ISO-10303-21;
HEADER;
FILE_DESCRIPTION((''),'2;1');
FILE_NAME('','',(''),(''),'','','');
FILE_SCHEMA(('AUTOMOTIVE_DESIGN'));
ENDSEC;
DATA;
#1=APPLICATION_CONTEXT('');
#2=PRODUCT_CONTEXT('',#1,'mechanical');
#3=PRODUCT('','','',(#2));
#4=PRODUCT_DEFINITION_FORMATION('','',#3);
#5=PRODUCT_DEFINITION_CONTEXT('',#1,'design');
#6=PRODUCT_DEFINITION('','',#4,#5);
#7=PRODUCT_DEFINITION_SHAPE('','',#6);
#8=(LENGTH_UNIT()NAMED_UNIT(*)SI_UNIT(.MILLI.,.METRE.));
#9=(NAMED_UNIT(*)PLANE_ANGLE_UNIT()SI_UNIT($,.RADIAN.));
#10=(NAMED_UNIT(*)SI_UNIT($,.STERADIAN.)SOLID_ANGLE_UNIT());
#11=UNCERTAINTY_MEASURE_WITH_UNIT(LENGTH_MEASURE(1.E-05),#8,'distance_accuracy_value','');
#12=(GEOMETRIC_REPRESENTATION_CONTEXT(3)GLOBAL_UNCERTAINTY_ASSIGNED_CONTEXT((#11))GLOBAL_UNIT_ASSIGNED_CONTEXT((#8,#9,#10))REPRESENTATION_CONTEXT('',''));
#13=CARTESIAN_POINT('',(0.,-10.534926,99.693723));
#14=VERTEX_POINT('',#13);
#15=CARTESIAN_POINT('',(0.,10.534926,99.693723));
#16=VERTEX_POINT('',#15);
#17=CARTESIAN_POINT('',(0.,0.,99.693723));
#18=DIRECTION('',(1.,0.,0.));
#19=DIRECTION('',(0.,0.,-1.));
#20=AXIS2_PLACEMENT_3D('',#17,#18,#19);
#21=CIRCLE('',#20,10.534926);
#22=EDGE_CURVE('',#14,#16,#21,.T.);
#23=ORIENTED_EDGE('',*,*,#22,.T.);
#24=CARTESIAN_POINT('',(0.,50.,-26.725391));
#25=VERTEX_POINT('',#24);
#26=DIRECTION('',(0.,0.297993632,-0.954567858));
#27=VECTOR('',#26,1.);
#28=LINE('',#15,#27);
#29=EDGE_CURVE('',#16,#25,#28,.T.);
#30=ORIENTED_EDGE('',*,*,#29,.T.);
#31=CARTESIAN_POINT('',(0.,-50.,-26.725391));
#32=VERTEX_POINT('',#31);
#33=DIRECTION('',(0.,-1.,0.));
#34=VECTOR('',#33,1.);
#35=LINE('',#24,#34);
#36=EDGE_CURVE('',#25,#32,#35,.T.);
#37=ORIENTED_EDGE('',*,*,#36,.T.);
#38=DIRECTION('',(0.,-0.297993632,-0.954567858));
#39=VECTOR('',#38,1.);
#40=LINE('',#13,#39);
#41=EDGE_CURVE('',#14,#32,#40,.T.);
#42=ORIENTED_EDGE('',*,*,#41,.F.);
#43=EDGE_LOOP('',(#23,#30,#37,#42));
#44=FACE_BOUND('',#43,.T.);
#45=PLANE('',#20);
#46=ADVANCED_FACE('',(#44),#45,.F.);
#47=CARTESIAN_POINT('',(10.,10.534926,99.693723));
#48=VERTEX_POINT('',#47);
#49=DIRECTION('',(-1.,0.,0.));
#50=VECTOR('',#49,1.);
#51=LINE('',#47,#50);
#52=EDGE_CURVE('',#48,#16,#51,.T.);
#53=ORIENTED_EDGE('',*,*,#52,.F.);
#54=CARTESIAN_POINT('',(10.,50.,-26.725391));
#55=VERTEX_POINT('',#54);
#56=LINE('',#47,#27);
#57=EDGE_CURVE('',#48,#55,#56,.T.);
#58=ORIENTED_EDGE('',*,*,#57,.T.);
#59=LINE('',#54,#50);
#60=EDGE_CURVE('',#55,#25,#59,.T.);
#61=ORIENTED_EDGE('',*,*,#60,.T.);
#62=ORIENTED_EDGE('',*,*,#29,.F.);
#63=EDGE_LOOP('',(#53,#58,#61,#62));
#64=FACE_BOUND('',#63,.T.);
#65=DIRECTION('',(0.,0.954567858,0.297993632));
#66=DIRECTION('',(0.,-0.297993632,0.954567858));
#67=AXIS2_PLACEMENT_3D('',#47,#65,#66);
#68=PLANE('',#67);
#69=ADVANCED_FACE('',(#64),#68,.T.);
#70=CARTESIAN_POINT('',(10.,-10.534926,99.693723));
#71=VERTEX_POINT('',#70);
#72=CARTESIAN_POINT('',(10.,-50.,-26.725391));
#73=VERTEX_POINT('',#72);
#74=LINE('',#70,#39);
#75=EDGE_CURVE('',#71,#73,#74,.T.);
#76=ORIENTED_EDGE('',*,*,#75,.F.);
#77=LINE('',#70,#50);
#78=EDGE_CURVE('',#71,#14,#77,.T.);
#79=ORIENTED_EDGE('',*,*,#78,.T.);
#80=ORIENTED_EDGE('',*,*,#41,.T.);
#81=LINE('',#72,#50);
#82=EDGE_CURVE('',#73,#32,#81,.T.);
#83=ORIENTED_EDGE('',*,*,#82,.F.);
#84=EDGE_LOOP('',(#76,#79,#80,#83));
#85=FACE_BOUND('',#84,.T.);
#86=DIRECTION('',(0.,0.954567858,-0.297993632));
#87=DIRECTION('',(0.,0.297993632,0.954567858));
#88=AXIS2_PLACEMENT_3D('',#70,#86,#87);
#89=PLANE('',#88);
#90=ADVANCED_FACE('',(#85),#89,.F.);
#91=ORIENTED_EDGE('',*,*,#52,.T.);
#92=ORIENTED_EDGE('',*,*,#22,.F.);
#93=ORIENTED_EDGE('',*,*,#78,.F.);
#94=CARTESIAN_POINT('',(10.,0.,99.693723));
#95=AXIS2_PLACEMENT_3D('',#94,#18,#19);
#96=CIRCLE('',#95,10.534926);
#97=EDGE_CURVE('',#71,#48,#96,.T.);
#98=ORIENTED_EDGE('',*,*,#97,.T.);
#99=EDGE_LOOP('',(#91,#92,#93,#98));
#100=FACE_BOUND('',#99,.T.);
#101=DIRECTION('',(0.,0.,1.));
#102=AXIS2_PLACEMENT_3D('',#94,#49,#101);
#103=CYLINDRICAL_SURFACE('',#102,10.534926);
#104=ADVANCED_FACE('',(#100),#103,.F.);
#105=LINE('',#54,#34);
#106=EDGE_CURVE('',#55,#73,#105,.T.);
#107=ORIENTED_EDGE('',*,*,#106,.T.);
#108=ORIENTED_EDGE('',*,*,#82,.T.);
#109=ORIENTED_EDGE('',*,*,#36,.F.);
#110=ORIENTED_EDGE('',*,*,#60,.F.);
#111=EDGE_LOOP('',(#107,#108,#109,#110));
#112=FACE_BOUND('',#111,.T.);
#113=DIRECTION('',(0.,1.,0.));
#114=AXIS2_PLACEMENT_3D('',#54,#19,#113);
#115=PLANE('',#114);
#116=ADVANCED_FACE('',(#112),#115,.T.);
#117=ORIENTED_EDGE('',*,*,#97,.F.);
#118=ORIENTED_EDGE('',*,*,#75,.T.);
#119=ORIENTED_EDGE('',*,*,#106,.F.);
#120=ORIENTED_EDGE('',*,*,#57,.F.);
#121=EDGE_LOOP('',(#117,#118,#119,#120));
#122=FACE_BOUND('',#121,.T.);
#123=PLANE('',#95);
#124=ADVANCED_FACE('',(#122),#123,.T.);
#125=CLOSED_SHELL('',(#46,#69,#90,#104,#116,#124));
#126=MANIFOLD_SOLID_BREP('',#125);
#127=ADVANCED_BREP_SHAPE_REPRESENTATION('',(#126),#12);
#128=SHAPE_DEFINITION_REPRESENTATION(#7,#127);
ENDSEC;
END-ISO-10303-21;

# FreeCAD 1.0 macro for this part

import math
import FreeCAD as App
import Part
import Sketcher
Q = App.Units.Quantity

doc = App.newDocument("Part")
body = doc.addObject("PartDesign::Body", "Body")

# Sketch on YZ plane
sketch1 = body.newObject("Sketcher::SketchObject", "Sketch")
sketch1.AttachmentSupport = (doc.getObject("YZ_Plane"), [""])
sketch1.MapMode = "FlatFace"
sketch1.addGeometry([
    Part.LineSegment(App.Vector(-50, -27, 0), App.Vector(50, -27, 0)),
    Part.LineSegment(App.Vector(50, -27, 0), App.Vector(11, 100, 0)),
    Part.ArcOfCircle(Part.Circle(App.Vector(0, 100, 0), App.Vector(0, 0, 1), 11), math.radians(180), math.radians(360)),
    Part.LineSegment(App.Vector(-11, 100, 0), App.Vector(-50, -27, 0)),
], False)
sketch1.addConstraint([
    Sketcher.Constraint("Coincident", 0, 2, 1, 1),
    Sketcher.Constraint("Coincident", 1, 2, 2, 2),
    Sketcher.Constraint("Coincident", 2, 1, 3, 1),
    Sketcher.Constraint("Coincident", 3, 2, 0, 1),
    Sketcher.Constraint("Horizontal", 0),
    Sketcher.Constraint("Symmetric", 1, 2, 2, 1, -2),
    Sketcher.Constraint("Horizontal", 2, 3, 1, 2),
    Sketcher.Constraint("Equal", 1, 3),
    Sketcher.Constraint("DistanceX", 0, 1, 0, 2, Q("100 mm")),
    Sketcher.Constraint("Radius", 2, Q("10.534926 mm")),
    Sketcher.Constraint("DistanceY", 0, 2, -1, 1, Q("26.725391 mm")),
    Sketcher.Constraint("Distance", 1, Q("132.435964 mm")),
])
pad1 = body.newObject("PartDesign::Pad", "Pad")
pad1.Profile = sketch1
pad1.Length = 10

doc.recompute()
